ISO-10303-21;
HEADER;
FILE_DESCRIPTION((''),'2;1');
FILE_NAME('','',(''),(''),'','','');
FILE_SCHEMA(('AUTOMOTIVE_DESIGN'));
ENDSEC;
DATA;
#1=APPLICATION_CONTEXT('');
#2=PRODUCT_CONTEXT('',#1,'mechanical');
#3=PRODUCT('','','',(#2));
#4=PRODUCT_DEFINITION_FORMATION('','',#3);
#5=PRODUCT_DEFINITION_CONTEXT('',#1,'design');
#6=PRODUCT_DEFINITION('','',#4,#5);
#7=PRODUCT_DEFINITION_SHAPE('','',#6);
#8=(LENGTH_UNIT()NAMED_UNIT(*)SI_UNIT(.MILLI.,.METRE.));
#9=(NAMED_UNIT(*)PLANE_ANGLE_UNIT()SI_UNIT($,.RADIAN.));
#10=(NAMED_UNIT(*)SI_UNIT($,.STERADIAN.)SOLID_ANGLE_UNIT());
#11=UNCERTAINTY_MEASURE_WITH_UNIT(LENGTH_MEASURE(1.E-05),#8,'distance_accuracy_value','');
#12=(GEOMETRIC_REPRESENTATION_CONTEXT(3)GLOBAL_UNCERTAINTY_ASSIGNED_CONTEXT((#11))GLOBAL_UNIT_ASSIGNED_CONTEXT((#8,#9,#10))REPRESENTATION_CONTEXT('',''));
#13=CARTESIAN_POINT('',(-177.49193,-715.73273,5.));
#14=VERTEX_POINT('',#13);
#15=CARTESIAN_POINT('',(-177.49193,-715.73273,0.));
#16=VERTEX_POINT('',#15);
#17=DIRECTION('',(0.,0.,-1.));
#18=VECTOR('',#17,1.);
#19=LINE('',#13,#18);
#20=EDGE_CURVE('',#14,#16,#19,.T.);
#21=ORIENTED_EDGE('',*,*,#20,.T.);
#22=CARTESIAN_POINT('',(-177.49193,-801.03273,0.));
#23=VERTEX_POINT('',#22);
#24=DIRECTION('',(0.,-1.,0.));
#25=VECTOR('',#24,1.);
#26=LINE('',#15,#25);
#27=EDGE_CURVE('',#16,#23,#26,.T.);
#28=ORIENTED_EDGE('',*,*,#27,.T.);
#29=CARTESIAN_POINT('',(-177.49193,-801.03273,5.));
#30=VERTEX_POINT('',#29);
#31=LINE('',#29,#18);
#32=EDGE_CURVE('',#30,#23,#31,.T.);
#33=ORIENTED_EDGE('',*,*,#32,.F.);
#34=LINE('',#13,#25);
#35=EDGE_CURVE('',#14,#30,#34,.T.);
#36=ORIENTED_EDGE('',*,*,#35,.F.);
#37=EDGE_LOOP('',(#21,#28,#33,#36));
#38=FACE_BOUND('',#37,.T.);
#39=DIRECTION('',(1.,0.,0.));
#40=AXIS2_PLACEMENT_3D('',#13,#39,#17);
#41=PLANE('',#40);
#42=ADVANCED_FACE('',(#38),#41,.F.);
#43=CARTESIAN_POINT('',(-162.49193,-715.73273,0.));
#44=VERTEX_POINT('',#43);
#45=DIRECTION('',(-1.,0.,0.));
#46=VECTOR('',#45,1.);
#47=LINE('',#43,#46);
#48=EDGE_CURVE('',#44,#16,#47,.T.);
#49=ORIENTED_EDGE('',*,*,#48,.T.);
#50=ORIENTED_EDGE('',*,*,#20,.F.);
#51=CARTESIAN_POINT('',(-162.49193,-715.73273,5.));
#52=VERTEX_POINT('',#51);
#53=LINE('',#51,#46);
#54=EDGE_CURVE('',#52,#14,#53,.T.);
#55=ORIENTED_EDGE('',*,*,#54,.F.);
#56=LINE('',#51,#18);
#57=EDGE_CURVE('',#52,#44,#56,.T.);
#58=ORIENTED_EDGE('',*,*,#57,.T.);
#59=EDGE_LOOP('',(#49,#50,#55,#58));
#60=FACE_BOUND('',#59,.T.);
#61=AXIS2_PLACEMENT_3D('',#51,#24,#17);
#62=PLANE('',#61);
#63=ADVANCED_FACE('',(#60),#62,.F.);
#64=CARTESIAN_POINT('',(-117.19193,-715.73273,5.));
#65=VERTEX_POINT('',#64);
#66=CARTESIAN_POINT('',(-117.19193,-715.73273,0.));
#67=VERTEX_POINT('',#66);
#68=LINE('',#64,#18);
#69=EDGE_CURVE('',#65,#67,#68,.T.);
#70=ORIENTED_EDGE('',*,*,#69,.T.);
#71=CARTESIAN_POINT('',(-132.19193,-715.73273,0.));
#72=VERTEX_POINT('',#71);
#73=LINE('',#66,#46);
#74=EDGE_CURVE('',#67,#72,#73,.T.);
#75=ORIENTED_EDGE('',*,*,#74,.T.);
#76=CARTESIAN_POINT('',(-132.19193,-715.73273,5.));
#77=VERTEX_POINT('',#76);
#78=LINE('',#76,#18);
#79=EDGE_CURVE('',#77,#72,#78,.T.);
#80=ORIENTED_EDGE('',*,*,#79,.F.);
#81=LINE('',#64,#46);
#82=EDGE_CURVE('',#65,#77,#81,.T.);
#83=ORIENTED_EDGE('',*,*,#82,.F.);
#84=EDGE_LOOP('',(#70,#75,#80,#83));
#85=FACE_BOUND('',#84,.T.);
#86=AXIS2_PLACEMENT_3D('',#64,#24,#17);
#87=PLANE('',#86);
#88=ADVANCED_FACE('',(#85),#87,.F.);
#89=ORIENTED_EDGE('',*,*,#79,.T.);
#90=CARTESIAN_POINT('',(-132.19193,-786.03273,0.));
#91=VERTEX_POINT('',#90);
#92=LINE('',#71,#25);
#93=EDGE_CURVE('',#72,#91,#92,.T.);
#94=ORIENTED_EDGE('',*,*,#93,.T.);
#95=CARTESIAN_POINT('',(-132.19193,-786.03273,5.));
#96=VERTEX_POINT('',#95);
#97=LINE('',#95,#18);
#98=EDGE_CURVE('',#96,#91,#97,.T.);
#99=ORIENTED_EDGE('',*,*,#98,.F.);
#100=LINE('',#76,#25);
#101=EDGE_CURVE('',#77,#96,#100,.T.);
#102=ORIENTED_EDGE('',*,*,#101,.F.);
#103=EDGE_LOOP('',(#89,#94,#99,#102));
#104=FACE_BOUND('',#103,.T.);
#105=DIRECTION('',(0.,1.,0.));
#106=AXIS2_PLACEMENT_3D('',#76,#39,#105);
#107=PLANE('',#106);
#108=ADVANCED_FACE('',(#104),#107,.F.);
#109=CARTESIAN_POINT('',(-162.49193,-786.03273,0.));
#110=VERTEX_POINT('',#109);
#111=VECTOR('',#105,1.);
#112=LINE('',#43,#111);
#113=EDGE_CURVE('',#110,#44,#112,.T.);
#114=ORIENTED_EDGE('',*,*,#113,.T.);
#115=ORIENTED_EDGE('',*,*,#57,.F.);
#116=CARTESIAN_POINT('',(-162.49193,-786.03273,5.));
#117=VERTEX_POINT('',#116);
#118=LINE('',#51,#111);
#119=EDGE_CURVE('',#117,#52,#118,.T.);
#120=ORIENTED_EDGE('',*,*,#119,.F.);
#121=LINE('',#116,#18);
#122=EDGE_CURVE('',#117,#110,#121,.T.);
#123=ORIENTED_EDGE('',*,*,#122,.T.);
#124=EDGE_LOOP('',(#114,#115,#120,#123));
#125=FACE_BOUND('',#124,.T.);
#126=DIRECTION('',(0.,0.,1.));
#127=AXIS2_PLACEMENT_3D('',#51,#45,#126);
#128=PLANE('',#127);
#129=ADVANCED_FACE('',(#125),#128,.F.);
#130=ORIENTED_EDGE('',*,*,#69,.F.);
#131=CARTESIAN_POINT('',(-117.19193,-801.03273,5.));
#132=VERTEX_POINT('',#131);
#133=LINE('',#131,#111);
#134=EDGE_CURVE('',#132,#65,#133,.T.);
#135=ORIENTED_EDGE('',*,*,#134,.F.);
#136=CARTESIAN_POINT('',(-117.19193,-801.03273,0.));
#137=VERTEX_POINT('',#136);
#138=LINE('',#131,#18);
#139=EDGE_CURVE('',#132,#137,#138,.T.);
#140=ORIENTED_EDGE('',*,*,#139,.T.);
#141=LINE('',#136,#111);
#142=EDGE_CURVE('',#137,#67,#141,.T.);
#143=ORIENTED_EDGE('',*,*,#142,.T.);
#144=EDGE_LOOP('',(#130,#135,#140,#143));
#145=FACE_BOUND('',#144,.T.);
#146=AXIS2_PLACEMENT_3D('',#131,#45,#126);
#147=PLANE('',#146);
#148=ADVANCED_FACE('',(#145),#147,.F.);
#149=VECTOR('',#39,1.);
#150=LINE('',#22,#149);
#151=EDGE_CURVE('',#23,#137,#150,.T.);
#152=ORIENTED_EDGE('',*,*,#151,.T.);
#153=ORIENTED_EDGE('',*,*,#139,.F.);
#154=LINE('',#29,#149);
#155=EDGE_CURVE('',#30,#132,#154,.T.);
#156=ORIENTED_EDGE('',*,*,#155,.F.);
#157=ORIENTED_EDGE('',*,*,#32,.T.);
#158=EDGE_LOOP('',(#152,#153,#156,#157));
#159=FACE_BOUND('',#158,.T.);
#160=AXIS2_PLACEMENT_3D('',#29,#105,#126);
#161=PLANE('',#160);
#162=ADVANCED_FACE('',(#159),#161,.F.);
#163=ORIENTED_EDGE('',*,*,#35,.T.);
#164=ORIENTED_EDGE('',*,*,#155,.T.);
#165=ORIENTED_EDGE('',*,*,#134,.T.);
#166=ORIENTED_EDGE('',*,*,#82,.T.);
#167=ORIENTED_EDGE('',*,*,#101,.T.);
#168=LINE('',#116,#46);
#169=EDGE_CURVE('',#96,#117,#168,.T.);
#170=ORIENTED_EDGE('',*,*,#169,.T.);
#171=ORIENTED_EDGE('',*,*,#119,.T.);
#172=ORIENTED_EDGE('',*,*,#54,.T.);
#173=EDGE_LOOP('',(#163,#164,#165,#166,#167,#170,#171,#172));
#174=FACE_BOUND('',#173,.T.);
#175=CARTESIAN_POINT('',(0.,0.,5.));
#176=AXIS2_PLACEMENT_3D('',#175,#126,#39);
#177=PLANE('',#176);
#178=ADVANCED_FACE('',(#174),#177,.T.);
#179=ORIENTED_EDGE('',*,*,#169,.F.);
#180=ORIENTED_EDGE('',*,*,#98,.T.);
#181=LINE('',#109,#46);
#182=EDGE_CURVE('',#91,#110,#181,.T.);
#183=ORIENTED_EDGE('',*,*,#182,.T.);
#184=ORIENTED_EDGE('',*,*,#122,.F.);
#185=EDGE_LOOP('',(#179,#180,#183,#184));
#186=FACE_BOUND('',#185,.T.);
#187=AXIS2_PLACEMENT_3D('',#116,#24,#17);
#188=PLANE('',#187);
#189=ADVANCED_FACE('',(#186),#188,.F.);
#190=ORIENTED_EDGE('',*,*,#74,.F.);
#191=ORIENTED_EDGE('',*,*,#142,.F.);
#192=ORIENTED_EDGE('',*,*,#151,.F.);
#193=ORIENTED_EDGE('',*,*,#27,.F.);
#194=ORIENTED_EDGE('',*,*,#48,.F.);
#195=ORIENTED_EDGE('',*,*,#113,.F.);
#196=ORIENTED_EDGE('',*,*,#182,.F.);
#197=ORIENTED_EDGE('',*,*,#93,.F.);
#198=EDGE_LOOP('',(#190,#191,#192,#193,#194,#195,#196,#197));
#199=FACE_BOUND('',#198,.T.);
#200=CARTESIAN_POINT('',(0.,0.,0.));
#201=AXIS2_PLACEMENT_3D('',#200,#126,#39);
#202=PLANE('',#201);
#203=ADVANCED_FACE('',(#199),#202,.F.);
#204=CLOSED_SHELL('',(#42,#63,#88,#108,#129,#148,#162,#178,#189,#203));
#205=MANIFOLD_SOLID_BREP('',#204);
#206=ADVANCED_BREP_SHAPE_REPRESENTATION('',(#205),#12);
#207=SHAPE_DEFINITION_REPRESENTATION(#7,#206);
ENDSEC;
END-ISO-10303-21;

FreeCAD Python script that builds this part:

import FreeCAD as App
import Part
import Sketcher

V = App.Vector


def add_polygon(sketch, points):
    """Adds a closed chain of lines whose ends are joined by coincident constraints."""
    first, n = sketch.GeometryCount, len(points)
    for a, b in zip(points, points[1:] + points[:1]):
        sketch.addGeometry(Part.LineSegment(App.Vector(*a, 0), App.Vector(*b, 0)), False)
    for i in range(n):
        sketch.addConstraint(Sketcher.Constraint("Coincident", first + i, 2, first + (i + 1) % n, 1))

doc = App.newDocument("Part")
body = doc.addObject("PartDesign::Body", "Body")

# Sketch on XY plane
sketch1 = body.newObject("Sketcher::SketchObject", "Sketch")
sketch1.AttachmentSupport = (doc.getObject("XY_Plane"), [""])
sketch1.MapMode = "FlatFace"
add_polygon(sketch1, [(-162.49193, -715.73273), (-177.49193, -715.73273), (-177.49193, -801.03273), (-117.19193, -801.03273), (-117.19193, -715.73273), (-132.19193, -715.73273), (-132.19193, -786.03273), (-162.49193, -786.03273)])  # lines 0-7
sketch1.addConstraint([
    Sketcher.Constraint("Horizontal", 0),
    Sketcher.Constraint("Vertical", 1),
    Sketcher.Constraint("Horizontal", 2),
    Sketcher.Constraint("Vertical", 3),
    Sketcher.Constraint("Horizontal", 4),
    Sketcher.Constraint("Vertical", 5),
    Sketcher.Constraint("Horizontal", 6),
    Sketcher.Constraint("Vertical", 7),
    Sketcher.Constraint("Horizontal", 0, 2, 3, 2),
    Sketcher.Constraint("Equal", 0, 4),
    Sketcher.Constraint("DistanceX", 0, 2, 0, 1, 15.0),
    Sketcher.Constraint("DistanceX", 2, 1, 2, 2, 60.3),
    Sketcher.Constraint("DistanceY", 1, 2, 1, 1, 85.3),
    Sketcher.Constraint("DistanceY", 5, 2, 5, 1, 70.3),
    Sketcher.Constraint("DistanceX", 0, 2, -1, 1, 177.49193),
    Sketcher.Constraint("DistanceY", 0, 2, -1, 1, 715.73273),
])
pad1 = body.newObject("PartDesign::Pad", "Pad")
pad1.Profile = sketch1
pad1.Length = 5

doc.recompute()
